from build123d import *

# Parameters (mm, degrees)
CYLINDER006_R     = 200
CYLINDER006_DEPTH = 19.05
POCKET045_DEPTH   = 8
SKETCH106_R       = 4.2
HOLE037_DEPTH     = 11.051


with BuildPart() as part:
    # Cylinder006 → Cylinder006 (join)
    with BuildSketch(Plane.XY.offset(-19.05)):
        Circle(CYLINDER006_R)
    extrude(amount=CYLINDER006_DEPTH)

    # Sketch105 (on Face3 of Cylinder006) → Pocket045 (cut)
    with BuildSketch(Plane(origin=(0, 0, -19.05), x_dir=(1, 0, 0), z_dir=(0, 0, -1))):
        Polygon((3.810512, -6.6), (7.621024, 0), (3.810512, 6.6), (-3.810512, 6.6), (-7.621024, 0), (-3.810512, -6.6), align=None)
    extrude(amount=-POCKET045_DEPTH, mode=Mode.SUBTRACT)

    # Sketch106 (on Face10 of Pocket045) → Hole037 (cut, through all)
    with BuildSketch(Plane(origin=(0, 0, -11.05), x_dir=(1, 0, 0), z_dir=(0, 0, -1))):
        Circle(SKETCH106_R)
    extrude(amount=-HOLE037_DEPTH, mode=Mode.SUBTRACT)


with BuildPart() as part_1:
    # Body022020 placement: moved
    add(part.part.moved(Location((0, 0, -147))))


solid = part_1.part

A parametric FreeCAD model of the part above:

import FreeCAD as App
import Part
import Sketcher

V = App.Vector
Q = App.Units.Quantity

doc = App.newDocument("Part")
body = doc.addObject("PartDesign::Body", "Body")

# Sketch on XY plane
sketch1 = body.newObject("Sketcher::SketchObject", "Sketch")
sketch1.AttachmentSupport = (doc.getObject("XY_Plane"), [""])
sketch1.MapMode = "FlatFace"
sketch1.AttachmentOffset = App.Placement(V(0, 0, -19.05), App.Rotation())
sketch1.addGeometry(Part.Circle(V(0, 0, 0), V(0, 0, 1), 200), False)
sketch1.addConstraint(Sketcher.Constraint("Coincident", 0, 3, -1, 1))
sketch1.addConstraint(Sketcher.Constraint("Diameter", 0, 400.0))
pad1 = body.newObject("PartDesign::Pad", "Pad")
pad1.Profile = sketch1
pad1.Length = 19.05

# Sketch on XY plane
sketch2 = body.newObject("Sketcher::SketchObject", "Sketch001")
sketch2.AttachmentSupport = (doc.getObject("XY_Plane"), [""])
sketch2.MapMode = "FlatFace"
sketch2.AttachmentOffset = App.Placement(V(0, 0, -19.05), App.Rotation())
sketch2.addGeometry(Part.LineSegment(V(4, 7, 0), V(8, 0, 0)), False)
sketch2.addGeometry(Part.LineSegment(V(8, 0, 0), V(4, -7, 0)), False)
sketch2.addGeometry(Part.LineSegment(V(4, -7, 0), V(-4, -7, 0)), False)
sketch2.addGeometry(Part.LineSegment(V(-4, -7, 0), V(-8, 0, 0)), False)
sketch2.addGeometry(Part.LineSegment(V(-8, 0, 0), V(-4, 7, 0)), False)
sketch2.addGeometry(Part.LineSegment(V(-4, 7, 0), V(4, 7, 0)), False)
sketch2.addConstraint(Sketcher.Constraint("Coincident", 0, 2, 1, 1))
sketch2.addConstraint(Sketcher.Constraint("Coincident", 1, 2, 2, 1))
sketch2.addConstraint(Sketcher.Constraint("Coincident", 2, 2, 3, 1))
sketch2.addConstraint(Sketcher.Constraint("Coincident", 3, 2, 4, 1))
sketch2.addConstraint(Sketcher.Constraint("Coincident", 4, 2, 5, 1))
sketch2.addConstraint(Sketcher.Constraint("Coincident", 5, 2, 0, 1))
sketch2.addConstraint(Sketcher.Constraint("Horizontal", 2))
sketch2.addConstraint(Sketcher.Constraint("Horizontal", 5))
sketch2.addConstraint(Sketcher.Constraint("Symmetric", 0, 2, 3, 2, -1, 1))
sketch2.addConstraint(Sketcher.Constraint("Symmetric", 1, 2, 4, 2, -1, 1))
sketch2.addConstraint(Sketcher.Constraint("PointOnObject", 0, 2, -1))
sketch2.addConstraint(Sketcher.Constraint("Parallel", 0, 3))
sketch2.addConstraint(Sketcher.Constraint("Vertical", 2, 2, 4, 2))
sketch2.addConstraint(Sketcher.Constraint("Angle", 0, Q("-59.999999 deg")))
sketch2.addConstraint(Sketcher.Constraint("DistanceY", 1, 2, -1, 1, 6.6))
sketch2.addConstraint(Sketcher.Constraint("DistanceX", 2, 2, 2, 1, 7.621024))
pocket1 = body.newObject("PartDesign::Pocket", "Pocket")
pocket1.Profile = sketch2
pocket1.Length = 8
pocket1.Reversed = True

# Sketch on XY plane
sketch3 = body.newObject("Sketcher::SketchObject", "Sketch002")
sketch3.AttachmentSupport = (doc.getObject("XY_Plane"), [""])
sketch3.MapMode = "FlatFace"
sketch3.AttachmentOffset = App.Placement(V(0, 0, -11.05), App.Rotation())
sketch3.addGeometry(Part.Circle(V(0, 0, 0), V(0, 0, 1), 4.2), False)
sketch3.addConstraint(Sketcher.Constraint("Coincident", 0, 3, -1, 1))
sketch3.addConstraint(Sketcher.Constraint("Diameter", 0, 8.4))
pocket2 = body.newObject("PartDesign::Pocket", "Pocket001")
pocket2.Profile = sketch3
pocket2.Type = "ThroughAll"
pocket2.Reversed = True
body2 = doc.addObject("PartDesign::Body", "Body001")
doc.recompute()

body.Placement = App.Placement(V(0, 0, -147), App.Rotation(V(0, 0, 1), 0))
boolean = body2.newObject("PartDesign::Boolean", "Boolean")
boolean.Type = "Fuse"
boolean.addObjects([body])

doc.recompute()
